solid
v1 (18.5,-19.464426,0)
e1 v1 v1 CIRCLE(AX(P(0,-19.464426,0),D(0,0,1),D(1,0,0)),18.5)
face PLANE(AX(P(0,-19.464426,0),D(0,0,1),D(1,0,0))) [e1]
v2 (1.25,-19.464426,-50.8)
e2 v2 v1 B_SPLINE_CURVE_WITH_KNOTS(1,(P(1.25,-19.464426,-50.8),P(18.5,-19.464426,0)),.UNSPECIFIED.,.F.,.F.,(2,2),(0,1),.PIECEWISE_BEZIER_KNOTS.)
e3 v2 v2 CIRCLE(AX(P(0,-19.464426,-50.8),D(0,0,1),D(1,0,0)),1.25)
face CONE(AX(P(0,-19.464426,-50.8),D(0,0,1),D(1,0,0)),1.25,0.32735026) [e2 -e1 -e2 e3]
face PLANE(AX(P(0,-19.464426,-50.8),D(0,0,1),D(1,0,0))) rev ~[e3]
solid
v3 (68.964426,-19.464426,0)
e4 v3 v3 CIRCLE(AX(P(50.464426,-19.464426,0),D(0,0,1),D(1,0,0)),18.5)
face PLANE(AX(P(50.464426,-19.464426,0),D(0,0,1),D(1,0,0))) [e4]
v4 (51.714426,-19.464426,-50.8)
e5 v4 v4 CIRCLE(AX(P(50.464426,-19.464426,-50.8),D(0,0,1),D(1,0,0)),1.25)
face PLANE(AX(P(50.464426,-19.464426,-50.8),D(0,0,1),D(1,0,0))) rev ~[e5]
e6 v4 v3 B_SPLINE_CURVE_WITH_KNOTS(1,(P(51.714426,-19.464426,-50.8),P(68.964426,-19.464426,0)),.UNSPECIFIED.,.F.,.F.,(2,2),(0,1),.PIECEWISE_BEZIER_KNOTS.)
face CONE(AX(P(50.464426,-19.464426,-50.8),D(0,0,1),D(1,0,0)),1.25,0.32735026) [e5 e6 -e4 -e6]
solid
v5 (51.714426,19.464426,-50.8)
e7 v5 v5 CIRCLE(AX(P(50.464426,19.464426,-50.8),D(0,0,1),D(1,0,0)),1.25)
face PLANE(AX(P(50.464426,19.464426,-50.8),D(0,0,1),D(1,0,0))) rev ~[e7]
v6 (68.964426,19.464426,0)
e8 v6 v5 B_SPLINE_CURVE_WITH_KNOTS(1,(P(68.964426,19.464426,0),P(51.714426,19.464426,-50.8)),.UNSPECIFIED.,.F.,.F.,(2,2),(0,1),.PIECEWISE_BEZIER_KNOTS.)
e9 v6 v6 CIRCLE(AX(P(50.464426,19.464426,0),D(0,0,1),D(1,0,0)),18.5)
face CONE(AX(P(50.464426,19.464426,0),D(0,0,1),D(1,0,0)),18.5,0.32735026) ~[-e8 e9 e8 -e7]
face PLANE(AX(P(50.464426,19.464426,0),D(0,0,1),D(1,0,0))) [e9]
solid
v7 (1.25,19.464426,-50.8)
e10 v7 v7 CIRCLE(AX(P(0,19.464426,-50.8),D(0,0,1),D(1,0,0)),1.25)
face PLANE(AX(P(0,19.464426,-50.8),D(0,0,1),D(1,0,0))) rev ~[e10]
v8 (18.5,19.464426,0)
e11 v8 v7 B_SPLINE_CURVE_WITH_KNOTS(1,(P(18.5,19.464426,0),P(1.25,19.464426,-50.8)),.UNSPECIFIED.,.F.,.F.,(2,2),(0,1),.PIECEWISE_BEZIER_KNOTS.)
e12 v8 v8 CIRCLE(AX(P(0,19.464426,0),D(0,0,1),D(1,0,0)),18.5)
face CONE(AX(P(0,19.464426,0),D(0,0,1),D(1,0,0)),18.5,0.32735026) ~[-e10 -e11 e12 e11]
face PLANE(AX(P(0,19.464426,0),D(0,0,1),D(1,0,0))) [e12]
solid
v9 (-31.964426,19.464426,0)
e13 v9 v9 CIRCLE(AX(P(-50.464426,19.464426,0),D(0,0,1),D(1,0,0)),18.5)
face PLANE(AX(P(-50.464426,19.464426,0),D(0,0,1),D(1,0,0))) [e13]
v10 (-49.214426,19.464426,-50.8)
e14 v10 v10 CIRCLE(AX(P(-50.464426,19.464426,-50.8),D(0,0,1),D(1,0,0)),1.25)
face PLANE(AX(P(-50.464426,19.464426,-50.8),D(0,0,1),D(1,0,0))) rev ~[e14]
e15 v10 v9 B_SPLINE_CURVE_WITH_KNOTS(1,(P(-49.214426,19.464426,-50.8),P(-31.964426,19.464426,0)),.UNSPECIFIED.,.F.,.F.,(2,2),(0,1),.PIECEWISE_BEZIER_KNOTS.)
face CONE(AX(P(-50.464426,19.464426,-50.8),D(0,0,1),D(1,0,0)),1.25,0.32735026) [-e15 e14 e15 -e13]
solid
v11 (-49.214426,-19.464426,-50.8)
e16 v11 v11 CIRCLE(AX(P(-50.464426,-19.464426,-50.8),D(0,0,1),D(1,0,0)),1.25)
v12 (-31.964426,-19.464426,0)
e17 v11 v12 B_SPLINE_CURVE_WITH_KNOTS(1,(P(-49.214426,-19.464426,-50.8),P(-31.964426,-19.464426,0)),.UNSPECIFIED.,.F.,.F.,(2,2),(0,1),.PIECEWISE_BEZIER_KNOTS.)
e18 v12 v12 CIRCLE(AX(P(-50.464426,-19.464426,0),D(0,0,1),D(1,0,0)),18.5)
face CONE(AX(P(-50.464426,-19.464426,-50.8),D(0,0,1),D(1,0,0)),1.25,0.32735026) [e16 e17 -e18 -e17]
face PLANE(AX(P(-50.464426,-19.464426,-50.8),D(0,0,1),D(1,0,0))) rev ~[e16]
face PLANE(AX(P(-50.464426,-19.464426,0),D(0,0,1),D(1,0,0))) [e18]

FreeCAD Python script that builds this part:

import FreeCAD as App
import Part
import Sketcher
from FreeCAD import Vector
Q = App.Units.Quantity

doc = App.newDocument("Part")
body = doc.addObject("PartDesign::Body", "Body")

sketch1 = body.newObject("Sketcher::SketchObject", "Sketch")
sketch1.AttachmentSupport = (doc.getObject("XY_Plane"), [""])
sketch1.MapMode = "FlatFace"
sketch1.AttachmentOffset = App.Placement(Vector(0, 0, -50.8), App.Rotation())
sketch1.addGeometry(Part.Circle(Vector(-50.5, 19.5, 0), Vector(0, 0, 1), 1.2), False)
sketch1.addConstraint([
    Sketcher.Constraint("Diameter", 0, Q("2.5 mm")),
    Sketcher.Constraint("DistanceX", 0, 3, -1, 1, Q("50.464426 mm")),
    Sketcher.Constraint("DistanceY", -1, 1, 0, 3, Q("19.464426 mm")),
])

sketch2 = body.newObject("Sketcher::SketchObject", "Sketch001")
sketch2.AttachmentSupport = (doc.getObject("XY_Plane"), [""])
sketch2.MapMode = "FlatFace"
sketch2.addGeometry(Part.Circle(Vector(-50, 19, 0), Vector(0, 0, 1), 18), False)
sketch2.addConstraint([
    Sketcher.Constraint("Diameter", 0, Q("37 mm")),
    Sketcher.Constraint("DistanceX", 0, 3, -1, 1, Q("50.464426 mm")),
    Sketcher.Constraint("DistanceY", -1, 1, 0, 3, Q("19.464426 mm")),
])

additiveloft = body.newObject("PartDesign::AdditiveLoft", "AdditiveLoft")
additiveloft.Profile = sketch1
additiveloft.Sections = [sketch2]
body2 = doc.addObject("PartDesign::Body", "Body001")

sketch3 = body2.newObject("Sketcher::SketchObject", "Sketch002")
sketch3.AttachmentSupport = (doc.getObject("XY_Plane001"), [""])
sketch3.MapMode = "FlatFace"
sketch3.addGeometry(Part.Circle(Vector(0, 19, 0), Vector(0, 0, 1), 18), False)
sketch3.addConstraint([
    Sketcher.Constraint("PointOnObject", 0, 3, -2),
    Sketcher.Constraint("Diameter", 0, Q("37 mm")),
    Sketcher.Constraint("DistanceY", -1, 1, 0, 3, Q("19.464426 mm")),
])

sketch4 = body2.newObject("Sketcher::SketchObject", "Sketch003")
sketch4.AttachmentSupport = (doc.getObject("XY_Plane001"), [""])
sketch4.MapMode = "FlatFace"
sketch4.AttachmentOffset = App.Placement(Vector(0, 0, -50.8), App.Rotation())
sketch4.addGeometry(Part.Circle(Vector(0, 19.5, 0), Vector(0, 0, 1), 1.2), False)
sketch4.addConstraint([
    Sketcher.Constraint("PointOnObject", 0, 3, -2),
    Sketcher.Constraint("Diameter", 0, Q("2.5 mm")),
    Sketcher.Constraint("DistanceY", -1, 1, 0, 3, Q("19.464426 mm")),
])

additiveloft2 = body2.newObject("PartDesign::AdditiveLoft", "AdditiveLoft001")
additiveloft2.Profile = sketch3
additiveloft2.Sections = [sketch4]
body3 = doc.addObject("PartDesign::Body", "Body002")

sketch5 = body3.newObject("Sketcher::SketchObject", "Sketch004")
sketch5.AttachmentSupport = (doc.getObject("XY_Plane002"), [""])
sketch5.MapMode = "FlatFace"
sketch5.addGeometry(Part.Circle(Vector(50, 19, 0), Vector(0, 0, 1), 18), False)
sketch5.addConstraint([
    Sketcher.Constraint("Diameter", 0, Q("37 mm")),
    Sketcher.Constraint("DistanceX", -1, 1, 0, 3, Q("50.464426 mm")),
    Sketcher.Constraint("DistanceY", -1, 1, 0, 3, Q("19.464426 mm")),
])

sketch6 = body3.newObject("Sketcher::SketchObject", "Sketch005")
sketch6.AttachmentSupport = (doc.getObject("XY_Plane002"), [""])
sketch6.MapMode = "FlatFace"
sketch6.AttachmentOffset = App.Placement(Vector(0, 0, -50.8), App.Rotation())
sketch6.addGeometry(Part.Circle(Vector(50.5, 19.5, 0), Vector(0, 0, 1), 1.2), False)
sketch6.addConstraint([
    Sketcher.Constraint("Diameter", 0, Q("2.5 mm")),
    Sketcher.Constraint("DistanceX", -1, 1, 0, 3, Q("50.464426 mm")),
    Sketcher.Constraint("DistanceY", -1, 1, 0, 3, Q("19.464426 mm")),
])

additiveloft3 = body3.newObject("PartDesign::AdditiveLoft", "AdditiveLoft002")
additiveloft3.Profile = sketch5
additiveloft3.Sections = [sketch6]
body4 = doc.addObject("PartDesign::Body", "Body003")

sketch7 = body4.newObject("Sketcher::SketchObject", "Sketch006")
sketch7.AttachmentSupport = (doc.getObject("XY_Plane003"), [""])
sketch7.MapMode = "FlatFace"
sketch7.AttachmentOffset = App.Placement(Vector(0, 0, -50.8), App.Rotation())
sketch7.addGeometry(Part.Circle(Vector(50.5, -19.5, 0), Vector(0, 0, 1), 1.2), False)
sketch7.addConstraint([
    Sketcher.Constraint("Diameter", 0, Q("2.5 mm")),
    Sketcher.Constraint("DistanceX", -1, 1, 0, 3, Q("50.464426 mm")),
    Sketcher.Constraint("DistanceY", 0, 3, -1, 1, Q("19.464426 mm")),
])

sketch8 = body4.newObject("Sketcher::SketchObject", "Sketch007")
sketch8.AttachmentSupport = (doc.getObject("XY_Plane003"), [""])
sketch8.MapMode = "FlatFace"
sketch8.addGeometry(Part.Circle(Vector(50, -19, 0), Vector(0, 0, 1), 18), False)
sketch8.addConstraint([
    Sketcher.Constraint("Diameter", 0, Q("37 mm")),
    Sketcher.Constraint("DistanceX", -1, 1, 0, 3, Q("50.464426 mm")),
    Sketcher.Constraint("DistanceY", 0, 3, -1, 1, Q("19.464426 mm")),
])

additiveloft4 = body4.newObject("PartDesign::AdditiveLoft", "AdditiveLoft003")
additiveloft4.Profile = sketch7
additiveloft4.Sections = [sketch8]
body5 = doc.addObject("PartDesign::Body", "Body004")

sketch9 = body5.newObject("Sketcher::SketchObject", "Sketch008")
sketch9.AttachmentSupport = (doc.getObject("XY_Plane004"), [""])
sketch9.MapMode = "FlatFace"
sketch9.AttachmentOffset = App.Placement(Vector(0, 0, -50.8), App.Rotation())
sketch9.addGeometry(Part.Circle(Vector(0, -19.5, 0), Vector(0, 0, 1), 1.2), False)
sketch9.addConstraint([
    Sketcher.Constraint("PointOnObject", 0, 3, -2),
    Sketcher.Constraint("Diameter", 0, Q("2.5 mm")),
    Sketcher.Constraint("DistanceY", 0, 3, -1, 1, Q("19.464426 mm")),
])

sketch10 = body5.newObject("Sketcher::SketchObject", "Sketch009")
sketch10.AttachmentSupport = (doc.getObject("XY_Plane004"), [""])
sketch10.MapMode = "FlatFace"
sketch10.addGeometry(Part.Circle(Vector(0, -19, 0), Vector(0, 0, 1), 18), False)
sketch10.addConstraint([
    Sketcher.Constraint("PointOnObject", 0, 3, -2),
    Sketcher.Constraint("Diameter", 0, Q("37 mm")),
    Sketcher.Constraint("DistanceY", 0, 3, -1, 1, Q("19.464426 mm")),
])

additiveloft5 = body5.newObject("PartDesign::AdditiveLoft", "AdditiveLoft004")
additiveloft5.Profile = sketch9
additiveloft5.Sections = [sketch10]
body6 = doc.addObject("PartDesign::Body", "Body005")

sketch11 = body6.newObject("Sketcher::SketchObject", "Sketch010")
sketch11.AttachmentSupport = (doc.getObject("XY_Plane005"), [""])
sketch11.MapMode = "FlatFace"
sketch11.AttachmentOffset = App.Placement(Vector(0, 0, -50.8), App.Rotation())
sketch11.addGeometry(Part.Circle(Vector(-50.5, -19.5, 0), Vector(0, 0, 1), 1.2), False)
sketch11.addConstraint([
    Sketcher.Constraint("Diameter", 0, Q("2.5 mm")),
    Sketcher.Constraint("DistanceX", 0, 3, -1, 1, Q("50.464426 mm")),
    Sketcher.Constraint("DistanceY", 0, 3, -1, 1, Q("19.464426 mm")),
])

sketch12 = body6.newObject("Sketcher::SketchObject", "Sketch011")
sketch12.AttachmentSupport = (doc.getObject("XY_Plane005"), [""])
sketch12.MapMode = "FlatFace"
sketch12.addGeometry(Part.Circle(Vector(-50, -19, 0), Vector(0, 0, 1), 18), False)
sketch12.addConstraint([
    Sketcher.Constraint("Diameter", 0, Q("37 mm")),
    Sketcher.Constraint("DistanceX", 0, 3, -1, 1, Q("50.464426 mm")),
    Sketcher.Constraint("DistanceY", 0, 3, -1, 1, Q("19.464426 mm")),
])

additiveloft6 = body6.newObject("PartDesign::AdditiveLoft", "AdditiveLoft005")
additiveloft6.Profile = sketch11
additiveloft6.Sections = [sketch12]

doc.recompute()
